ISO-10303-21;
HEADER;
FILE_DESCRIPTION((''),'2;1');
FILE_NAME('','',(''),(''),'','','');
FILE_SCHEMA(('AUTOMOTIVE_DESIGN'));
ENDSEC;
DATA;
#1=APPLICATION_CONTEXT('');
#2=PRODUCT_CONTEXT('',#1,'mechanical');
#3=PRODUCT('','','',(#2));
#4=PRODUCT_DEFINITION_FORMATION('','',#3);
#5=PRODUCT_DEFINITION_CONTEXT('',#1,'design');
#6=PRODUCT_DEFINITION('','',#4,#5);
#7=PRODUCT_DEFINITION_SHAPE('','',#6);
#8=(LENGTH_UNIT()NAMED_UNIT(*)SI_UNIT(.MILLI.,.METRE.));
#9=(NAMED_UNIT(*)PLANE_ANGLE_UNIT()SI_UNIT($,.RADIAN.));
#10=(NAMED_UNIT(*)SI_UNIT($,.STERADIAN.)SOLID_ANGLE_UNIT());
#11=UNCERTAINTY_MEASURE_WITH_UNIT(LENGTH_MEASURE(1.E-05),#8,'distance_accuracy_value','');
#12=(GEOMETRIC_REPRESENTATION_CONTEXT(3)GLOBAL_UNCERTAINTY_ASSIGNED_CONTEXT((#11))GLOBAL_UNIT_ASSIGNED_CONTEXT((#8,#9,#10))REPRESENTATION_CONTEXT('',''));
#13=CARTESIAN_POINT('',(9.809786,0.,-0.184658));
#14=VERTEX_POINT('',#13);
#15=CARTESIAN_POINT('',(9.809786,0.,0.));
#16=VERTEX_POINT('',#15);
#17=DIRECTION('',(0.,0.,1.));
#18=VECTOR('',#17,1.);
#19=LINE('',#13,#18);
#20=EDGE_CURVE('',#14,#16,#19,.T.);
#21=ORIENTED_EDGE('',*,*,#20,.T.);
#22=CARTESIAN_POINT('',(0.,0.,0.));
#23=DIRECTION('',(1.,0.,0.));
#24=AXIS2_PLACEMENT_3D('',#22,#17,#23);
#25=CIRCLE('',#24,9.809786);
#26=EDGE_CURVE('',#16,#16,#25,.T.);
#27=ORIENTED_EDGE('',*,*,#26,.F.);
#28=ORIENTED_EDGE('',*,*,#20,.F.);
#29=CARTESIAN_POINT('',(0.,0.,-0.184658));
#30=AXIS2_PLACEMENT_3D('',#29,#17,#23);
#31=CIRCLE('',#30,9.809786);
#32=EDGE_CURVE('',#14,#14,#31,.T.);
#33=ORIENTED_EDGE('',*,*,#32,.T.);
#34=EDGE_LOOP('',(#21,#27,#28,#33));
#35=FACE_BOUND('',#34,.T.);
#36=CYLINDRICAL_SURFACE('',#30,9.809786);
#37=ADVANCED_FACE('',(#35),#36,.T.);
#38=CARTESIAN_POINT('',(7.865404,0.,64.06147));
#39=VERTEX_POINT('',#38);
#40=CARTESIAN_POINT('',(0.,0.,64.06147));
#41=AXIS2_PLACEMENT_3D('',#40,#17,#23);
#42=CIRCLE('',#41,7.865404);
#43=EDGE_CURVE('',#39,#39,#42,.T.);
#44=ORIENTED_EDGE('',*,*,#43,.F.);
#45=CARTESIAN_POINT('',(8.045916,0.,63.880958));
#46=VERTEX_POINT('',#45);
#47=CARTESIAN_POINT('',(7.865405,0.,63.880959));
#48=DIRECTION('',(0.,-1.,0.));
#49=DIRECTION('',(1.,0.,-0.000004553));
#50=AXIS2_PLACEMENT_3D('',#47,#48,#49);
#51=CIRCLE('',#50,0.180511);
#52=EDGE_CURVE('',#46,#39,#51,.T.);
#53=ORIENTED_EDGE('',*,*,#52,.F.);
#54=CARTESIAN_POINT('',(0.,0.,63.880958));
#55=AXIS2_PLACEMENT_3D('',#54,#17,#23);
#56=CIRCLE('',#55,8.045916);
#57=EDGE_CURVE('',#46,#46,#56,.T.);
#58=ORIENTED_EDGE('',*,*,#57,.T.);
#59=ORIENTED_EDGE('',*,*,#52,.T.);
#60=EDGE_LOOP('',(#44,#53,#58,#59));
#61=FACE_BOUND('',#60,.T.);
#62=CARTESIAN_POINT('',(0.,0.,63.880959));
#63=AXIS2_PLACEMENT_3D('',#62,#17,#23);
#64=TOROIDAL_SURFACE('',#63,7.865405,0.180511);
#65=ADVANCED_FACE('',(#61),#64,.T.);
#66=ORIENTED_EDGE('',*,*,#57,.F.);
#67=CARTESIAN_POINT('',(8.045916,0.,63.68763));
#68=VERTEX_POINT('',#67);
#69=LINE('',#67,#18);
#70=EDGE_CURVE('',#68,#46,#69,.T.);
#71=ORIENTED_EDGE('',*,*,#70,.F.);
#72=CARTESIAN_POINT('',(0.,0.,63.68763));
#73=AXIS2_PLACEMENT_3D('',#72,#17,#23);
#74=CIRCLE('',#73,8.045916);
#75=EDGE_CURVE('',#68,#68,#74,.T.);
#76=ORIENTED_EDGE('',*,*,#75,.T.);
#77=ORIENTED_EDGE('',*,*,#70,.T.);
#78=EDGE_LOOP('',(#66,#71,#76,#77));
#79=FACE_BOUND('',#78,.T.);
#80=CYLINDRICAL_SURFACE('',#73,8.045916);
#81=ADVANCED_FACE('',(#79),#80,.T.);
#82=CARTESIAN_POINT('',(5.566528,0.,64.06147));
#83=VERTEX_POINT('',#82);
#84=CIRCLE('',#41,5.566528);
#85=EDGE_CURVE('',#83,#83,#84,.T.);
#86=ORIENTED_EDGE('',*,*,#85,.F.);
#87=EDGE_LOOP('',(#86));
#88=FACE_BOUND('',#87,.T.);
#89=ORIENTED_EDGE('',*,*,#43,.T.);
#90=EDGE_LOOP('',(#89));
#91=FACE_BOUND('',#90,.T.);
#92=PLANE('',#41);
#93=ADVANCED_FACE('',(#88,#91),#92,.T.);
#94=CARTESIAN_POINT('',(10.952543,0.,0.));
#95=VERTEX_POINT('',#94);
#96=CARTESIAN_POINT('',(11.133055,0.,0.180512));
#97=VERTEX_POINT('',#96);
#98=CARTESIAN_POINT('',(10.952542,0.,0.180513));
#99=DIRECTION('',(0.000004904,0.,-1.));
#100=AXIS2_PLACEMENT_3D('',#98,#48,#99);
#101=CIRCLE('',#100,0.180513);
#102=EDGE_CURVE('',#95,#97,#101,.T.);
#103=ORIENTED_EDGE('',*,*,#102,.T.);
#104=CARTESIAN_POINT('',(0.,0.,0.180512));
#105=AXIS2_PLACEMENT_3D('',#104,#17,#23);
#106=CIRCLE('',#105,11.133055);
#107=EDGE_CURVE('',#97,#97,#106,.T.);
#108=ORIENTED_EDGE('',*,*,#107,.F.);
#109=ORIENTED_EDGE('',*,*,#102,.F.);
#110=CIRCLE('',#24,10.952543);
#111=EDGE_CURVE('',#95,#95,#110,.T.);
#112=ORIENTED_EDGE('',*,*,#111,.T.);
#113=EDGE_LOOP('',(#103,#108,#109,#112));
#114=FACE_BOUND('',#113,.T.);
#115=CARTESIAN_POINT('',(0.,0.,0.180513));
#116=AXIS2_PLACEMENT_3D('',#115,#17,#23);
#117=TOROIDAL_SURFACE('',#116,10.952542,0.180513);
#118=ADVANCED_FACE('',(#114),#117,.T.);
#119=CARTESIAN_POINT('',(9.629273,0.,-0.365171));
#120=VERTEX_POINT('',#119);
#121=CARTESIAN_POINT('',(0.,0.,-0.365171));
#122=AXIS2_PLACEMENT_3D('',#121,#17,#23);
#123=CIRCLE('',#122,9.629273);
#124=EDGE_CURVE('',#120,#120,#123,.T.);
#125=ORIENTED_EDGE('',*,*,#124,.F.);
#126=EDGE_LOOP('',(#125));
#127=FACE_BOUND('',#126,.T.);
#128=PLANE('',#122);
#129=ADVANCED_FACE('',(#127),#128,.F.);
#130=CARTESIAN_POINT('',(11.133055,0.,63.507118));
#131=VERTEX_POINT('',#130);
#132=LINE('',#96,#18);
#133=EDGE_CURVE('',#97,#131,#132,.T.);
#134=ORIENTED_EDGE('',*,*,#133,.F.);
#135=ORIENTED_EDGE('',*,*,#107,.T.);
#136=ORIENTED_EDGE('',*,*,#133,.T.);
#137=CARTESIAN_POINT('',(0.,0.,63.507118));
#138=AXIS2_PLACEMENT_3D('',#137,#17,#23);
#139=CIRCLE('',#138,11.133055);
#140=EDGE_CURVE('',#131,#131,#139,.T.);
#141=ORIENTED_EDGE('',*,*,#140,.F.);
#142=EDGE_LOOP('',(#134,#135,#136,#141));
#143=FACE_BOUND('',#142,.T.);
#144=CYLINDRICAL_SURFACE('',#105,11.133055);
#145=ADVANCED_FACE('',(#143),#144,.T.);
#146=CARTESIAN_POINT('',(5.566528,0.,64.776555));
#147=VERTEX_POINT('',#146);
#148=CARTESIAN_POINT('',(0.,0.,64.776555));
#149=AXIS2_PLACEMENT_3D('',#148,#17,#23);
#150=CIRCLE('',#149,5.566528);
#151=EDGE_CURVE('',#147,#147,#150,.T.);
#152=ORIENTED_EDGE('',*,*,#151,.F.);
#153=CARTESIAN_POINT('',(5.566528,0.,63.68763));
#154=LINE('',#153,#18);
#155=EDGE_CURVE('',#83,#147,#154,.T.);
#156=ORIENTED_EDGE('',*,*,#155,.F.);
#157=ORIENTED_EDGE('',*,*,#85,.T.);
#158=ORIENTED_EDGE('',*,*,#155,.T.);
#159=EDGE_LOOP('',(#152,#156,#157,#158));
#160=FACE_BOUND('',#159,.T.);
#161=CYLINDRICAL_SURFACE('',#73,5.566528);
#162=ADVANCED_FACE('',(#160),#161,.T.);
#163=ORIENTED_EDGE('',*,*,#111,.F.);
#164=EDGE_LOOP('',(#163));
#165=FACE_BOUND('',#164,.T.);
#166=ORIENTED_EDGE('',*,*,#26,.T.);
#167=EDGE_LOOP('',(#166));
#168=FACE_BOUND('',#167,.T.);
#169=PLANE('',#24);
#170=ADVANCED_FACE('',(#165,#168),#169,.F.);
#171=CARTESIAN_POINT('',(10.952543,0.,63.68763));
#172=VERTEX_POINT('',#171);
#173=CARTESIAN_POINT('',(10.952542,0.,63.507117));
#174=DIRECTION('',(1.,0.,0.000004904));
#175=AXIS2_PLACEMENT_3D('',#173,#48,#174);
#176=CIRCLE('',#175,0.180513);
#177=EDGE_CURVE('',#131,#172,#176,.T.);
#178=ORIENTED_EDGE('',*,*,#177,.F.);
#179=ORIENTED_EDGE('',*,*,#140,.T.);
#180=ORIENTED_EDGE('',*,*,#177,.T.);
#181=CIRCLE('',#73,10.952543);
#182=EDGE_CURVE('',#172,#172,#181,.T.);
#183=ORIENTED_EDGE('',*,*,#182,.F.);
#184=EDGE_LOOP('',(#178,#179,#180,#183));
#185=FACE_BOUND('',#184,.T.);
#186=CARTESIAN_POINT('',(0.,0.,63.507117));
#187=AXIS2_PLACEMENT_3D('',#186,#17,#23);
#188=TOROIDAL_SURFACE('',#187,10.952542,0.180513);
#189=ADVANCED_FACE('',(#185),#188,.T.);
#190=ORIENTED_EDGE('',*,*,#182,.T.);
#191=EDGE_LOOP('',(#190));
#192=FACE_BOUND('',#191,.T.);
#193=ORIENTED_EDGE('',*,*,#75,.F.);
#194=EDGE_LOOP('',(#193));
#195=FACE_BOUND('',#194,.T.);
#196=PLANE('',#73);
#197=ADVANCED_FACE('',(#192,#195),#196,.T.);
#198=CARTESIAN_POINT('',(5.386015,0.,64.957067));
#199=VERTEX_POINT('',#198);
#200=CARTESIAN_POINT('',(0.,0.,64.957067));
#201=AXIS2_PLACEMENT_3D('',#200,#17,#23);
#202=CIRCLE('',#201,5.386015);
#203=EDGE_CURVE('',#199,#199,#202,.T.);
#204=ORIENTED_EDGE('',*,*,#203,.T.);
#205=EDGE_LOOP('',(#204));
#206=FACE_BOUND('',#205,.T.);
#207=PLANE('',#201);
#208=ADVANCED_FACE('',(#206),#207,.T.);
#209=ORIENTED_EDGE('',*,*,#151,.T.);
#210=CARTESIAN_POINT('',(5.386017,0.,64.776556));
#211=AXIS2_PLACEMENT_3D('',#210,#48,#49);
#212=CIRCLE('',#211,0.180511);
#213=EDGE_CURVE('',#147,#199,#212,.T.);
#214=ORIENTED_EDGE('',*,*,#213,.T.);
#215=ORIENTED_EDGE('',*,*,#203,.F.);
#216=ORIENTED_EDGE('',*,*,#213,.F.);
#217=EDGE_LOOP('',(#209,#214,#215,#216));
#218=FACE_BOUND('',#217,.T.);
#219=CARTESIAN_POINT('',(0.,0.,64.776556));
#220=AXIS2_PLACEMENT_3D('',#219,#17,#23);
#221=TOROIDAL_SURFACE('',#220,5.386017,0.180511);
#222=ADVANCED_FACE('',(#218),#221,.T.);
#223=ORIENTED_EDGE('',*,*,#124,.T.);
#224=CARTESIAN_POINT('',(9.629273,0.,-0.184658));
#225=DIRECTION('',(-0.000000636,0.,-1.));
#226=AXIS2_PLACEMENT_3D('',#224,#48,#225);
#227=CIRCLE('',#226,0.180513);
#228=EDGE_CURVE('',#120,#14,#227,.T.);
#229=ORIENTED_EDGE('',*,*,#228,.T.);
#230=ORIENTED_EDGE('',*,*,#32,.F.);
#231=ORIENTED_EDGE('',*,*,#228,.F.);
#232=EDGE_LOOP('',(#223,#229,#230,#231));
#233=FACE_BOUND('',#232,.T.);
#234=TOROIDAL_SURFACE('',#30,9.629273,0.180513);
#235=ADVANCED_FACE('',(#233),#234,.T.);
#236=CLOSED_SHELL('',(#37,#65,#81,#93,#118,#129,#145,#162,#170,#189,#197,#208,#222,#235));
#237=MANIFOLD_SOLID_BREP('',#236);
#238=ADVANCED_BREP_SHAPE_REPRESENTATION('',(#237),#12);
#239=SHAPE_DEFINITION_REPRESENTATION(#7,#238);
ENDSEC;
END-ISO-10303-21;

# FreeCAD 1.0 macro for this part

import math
import FreeCAD as App
import Part
import Sketcher

V = App.Vector

doc = App.newDocument("Part")
params = doc.addObject("Spreadsheet::Sheet", "Params")
for row, (alias, value) in enumerate([
    ("revolution_angle", "360 deg"),
], start=1):
    params.set(f"A{row}", alias)
    params.set(f"B{row}", "=" + value)
    params.setAlias(f"B{row}", alias)

body = doc.addObject("PartDesign::Body", "Body")

sketch1 = body.newObject("Sketcher::SketchObject", "Sketch")
sketch1.AttachmentSupport = (doc.getObject("XZ_Plane"), [""])
sketch1.MapMode = "FlatFace"
sketch1.addGeometry([
    Part.LineSegment(V(0, 64.957067, 0), V(0, -0.365171, 0)),
    Part.LineSegment(V(0, -0.365171, 0), V(9.629273, -0.365171, 0)),
    Part.ArcOfCircle(Part.Circle(V(9.629273, -0.184658, 0), V(0, 0, 1), 0.180513), math.radians(-90.000037), math.radians(0.000037)),
    Part.LineSegment(V(9.809786, -0.184658, 0), V(9.809786, 0, 0)),
    Part.LineSegment(V(9.809786, 0, 0), V(10.952543, 0, 0)),
    Part.ArcOfCircle(Part.Circle(V(10.952542, 0.180513, 0), V(0, 0, 1), 0.180513), math.radians(-89.999719), math.radians(-0.000281)),
    Part.LineSegment(V(11.133055, 0.180512, 0), V(11.133055, 63.507118, 0)),
    Part.ArcOfCircle(Part.Circle(V(10.952542, 63.507117, 0), V(0, 0, 1), 0.180513), math.radians(0.000281), math.radians(89.999719)),
    Part.LineSegment(V(10.952543, 63.68763, 0), V(8.045916, 63.68763, 0)),
    Part.LineSegment(V(8.045916, 63.68763, 0), V(8.045916, 63.880958, 0)),
    Part.ArcOfCircle(Part.Circle(V(7.865405, 63.880959, 0), V(0, 0, 1), 0.180511), math.radians(-0.000261), math.radians(90.000261)),
    Part.LineSegment(V(7.865404, 64.06147, 0), V(5.566528, 64.06147, 0)),
    Part.LineSegment(V(5.566528, 64.06147, 0), V(5.566528, 64.776555, 0)),
    Part.ArcOfCircle(Part.Circle(V(5.386017, 64.776556, 0), V(0, 0, 1), 0.180511), math.radians(-0.000261), math.radians(90.000578)),
    Part.LineSegment(V(5.386015, 64.957067, 0), V(0, 64.957067, 0)),
], False)
sketch1.addConstraint([
    Sketcher.Constraint("Coincident", 0, 2, 1, 1),
    Sketcher.Constraint("Tangent", 1, 2, 2, 1),
    Sketcher.Constraint("Tangent", 2, 2, 3, 1),
    Sketcher.Constraint("Coincident", 3, 2, 4, 1),
    Sketcher.Constraint("Coincident", 4, 2, 5, 1),
    Sketcher.Constraint("Coincident", 5, 2, 6, 1),
    Sketcher.Constraint("Coincident", 6, 2, 7, 1),
    Sketcher.Constraint("Coincident", 7, 2, 8, 1),
    Sketcher.Constraint("Coincident", 8, 2, 9, 1),
    Sketcher.Constraint("Coincident", 9, 2, 10, 1),
    Sketcher.Constraint("Coincident", 10, 2, 11, 1),
    Sketcher.Constraint("Coincident", 11, 2, 12, 1),
    Sketcher.Constraint("Coincident", 12, 2, 13, 1),
    Sketcher.Constraint("Coincident", 13, 2, 14, 1),
    Sketcher.Constraint("Coincident", 14, 2, 0, 1),
    Sketcher.Constraint("Vertical", 0),
    Sketcher.Constraint("Horizontal", 1),
    Sketcher.Constraint("Vertical", 3),
    Sketcher.Constraint("Horizontal", 4),
    Sketcher.Constraint("Vertical", 6),
    Sketcher.Constraint("Horizontal", 8),
    Sketcher.Constraint("Vertical", 9),
    Sketcher.Constraint("Horizontal", 11),
    Sketcher.Constraint("Vertical", 12),
    Sketcher.Constraint("Horizontal", 14),
    Sketcher.Constraint("Equal", 2, 5),
    Sketcher.Constraint("Equal", 5, 7),
    Sketcher.Constraint("Equal", 7, 10),
    Sketcher.Constraint("Equal", 10, 13),
    Sketcher.Constraint("PointOnObject", 0, 2, -2),
    Sketcher.Constraint("PointOnObject", 3, 2, -1),
    Sketcher.Constraint("Horizontal", 7, 3, 6, 2),
    Sketcher.Constraint("Horizontal", 10, 3, 9, 2),
    Sketcher.Constraint("Horizontal", 13, 3, 12, 2),
    Sketcher.Constraint("Vertical", 7, 3, 4, 2),
    Sketcher.Constraint("Vertical", 4, 2, 7, 2),
    Sketcher.Constraint("Radius", 10, 0.180511),
    Sketcher.Constraint("DistanceY", 0, 2, 0, 1, 65.322238),
    Sketcher.Constraint("DistanceY", 9, 1, 9, 2, 0.193328),
    Sketcher.Constraint("DistanceX", 13, 3, 8, 2, 2.659899),
    Sketcher.Constraint("DistanceX", 1, 1, 1, 2, 9.629273),
    Sketcher.Constraint("DistanceX", 4, 1, 4, 2, 1.142757),
    Sketcher.Constraint("DistanceX", 8, 2, 8, 1, 2.906627),
    Sketcher.Constraint("DistanceX", 11, 2, 11, 1, 2.298876),
    Sketcher.Constraint("DistanceX", 14, 2, 14, 1, 5.386015),
    Sketcher.Constraint("DistanceY", 3, 1, 3, 2, 0.184658),
    Sketcher.Constraint("DistanceY", 6, 1, 6, 2, 63.326606),
    Sketcher.Constraint("DistanceY", 12, 1, 12, 2, 0.715085),
])
revolution = body.newObject("PartDesign::Revolution", "Revolution")
revolution.Profile = sketch1
revolution.ReferenceAxis = (sketch1, ["V_Axis"])
revolution.setExpression("Angle", "Params.revolution_angle")

doc.recompute()
